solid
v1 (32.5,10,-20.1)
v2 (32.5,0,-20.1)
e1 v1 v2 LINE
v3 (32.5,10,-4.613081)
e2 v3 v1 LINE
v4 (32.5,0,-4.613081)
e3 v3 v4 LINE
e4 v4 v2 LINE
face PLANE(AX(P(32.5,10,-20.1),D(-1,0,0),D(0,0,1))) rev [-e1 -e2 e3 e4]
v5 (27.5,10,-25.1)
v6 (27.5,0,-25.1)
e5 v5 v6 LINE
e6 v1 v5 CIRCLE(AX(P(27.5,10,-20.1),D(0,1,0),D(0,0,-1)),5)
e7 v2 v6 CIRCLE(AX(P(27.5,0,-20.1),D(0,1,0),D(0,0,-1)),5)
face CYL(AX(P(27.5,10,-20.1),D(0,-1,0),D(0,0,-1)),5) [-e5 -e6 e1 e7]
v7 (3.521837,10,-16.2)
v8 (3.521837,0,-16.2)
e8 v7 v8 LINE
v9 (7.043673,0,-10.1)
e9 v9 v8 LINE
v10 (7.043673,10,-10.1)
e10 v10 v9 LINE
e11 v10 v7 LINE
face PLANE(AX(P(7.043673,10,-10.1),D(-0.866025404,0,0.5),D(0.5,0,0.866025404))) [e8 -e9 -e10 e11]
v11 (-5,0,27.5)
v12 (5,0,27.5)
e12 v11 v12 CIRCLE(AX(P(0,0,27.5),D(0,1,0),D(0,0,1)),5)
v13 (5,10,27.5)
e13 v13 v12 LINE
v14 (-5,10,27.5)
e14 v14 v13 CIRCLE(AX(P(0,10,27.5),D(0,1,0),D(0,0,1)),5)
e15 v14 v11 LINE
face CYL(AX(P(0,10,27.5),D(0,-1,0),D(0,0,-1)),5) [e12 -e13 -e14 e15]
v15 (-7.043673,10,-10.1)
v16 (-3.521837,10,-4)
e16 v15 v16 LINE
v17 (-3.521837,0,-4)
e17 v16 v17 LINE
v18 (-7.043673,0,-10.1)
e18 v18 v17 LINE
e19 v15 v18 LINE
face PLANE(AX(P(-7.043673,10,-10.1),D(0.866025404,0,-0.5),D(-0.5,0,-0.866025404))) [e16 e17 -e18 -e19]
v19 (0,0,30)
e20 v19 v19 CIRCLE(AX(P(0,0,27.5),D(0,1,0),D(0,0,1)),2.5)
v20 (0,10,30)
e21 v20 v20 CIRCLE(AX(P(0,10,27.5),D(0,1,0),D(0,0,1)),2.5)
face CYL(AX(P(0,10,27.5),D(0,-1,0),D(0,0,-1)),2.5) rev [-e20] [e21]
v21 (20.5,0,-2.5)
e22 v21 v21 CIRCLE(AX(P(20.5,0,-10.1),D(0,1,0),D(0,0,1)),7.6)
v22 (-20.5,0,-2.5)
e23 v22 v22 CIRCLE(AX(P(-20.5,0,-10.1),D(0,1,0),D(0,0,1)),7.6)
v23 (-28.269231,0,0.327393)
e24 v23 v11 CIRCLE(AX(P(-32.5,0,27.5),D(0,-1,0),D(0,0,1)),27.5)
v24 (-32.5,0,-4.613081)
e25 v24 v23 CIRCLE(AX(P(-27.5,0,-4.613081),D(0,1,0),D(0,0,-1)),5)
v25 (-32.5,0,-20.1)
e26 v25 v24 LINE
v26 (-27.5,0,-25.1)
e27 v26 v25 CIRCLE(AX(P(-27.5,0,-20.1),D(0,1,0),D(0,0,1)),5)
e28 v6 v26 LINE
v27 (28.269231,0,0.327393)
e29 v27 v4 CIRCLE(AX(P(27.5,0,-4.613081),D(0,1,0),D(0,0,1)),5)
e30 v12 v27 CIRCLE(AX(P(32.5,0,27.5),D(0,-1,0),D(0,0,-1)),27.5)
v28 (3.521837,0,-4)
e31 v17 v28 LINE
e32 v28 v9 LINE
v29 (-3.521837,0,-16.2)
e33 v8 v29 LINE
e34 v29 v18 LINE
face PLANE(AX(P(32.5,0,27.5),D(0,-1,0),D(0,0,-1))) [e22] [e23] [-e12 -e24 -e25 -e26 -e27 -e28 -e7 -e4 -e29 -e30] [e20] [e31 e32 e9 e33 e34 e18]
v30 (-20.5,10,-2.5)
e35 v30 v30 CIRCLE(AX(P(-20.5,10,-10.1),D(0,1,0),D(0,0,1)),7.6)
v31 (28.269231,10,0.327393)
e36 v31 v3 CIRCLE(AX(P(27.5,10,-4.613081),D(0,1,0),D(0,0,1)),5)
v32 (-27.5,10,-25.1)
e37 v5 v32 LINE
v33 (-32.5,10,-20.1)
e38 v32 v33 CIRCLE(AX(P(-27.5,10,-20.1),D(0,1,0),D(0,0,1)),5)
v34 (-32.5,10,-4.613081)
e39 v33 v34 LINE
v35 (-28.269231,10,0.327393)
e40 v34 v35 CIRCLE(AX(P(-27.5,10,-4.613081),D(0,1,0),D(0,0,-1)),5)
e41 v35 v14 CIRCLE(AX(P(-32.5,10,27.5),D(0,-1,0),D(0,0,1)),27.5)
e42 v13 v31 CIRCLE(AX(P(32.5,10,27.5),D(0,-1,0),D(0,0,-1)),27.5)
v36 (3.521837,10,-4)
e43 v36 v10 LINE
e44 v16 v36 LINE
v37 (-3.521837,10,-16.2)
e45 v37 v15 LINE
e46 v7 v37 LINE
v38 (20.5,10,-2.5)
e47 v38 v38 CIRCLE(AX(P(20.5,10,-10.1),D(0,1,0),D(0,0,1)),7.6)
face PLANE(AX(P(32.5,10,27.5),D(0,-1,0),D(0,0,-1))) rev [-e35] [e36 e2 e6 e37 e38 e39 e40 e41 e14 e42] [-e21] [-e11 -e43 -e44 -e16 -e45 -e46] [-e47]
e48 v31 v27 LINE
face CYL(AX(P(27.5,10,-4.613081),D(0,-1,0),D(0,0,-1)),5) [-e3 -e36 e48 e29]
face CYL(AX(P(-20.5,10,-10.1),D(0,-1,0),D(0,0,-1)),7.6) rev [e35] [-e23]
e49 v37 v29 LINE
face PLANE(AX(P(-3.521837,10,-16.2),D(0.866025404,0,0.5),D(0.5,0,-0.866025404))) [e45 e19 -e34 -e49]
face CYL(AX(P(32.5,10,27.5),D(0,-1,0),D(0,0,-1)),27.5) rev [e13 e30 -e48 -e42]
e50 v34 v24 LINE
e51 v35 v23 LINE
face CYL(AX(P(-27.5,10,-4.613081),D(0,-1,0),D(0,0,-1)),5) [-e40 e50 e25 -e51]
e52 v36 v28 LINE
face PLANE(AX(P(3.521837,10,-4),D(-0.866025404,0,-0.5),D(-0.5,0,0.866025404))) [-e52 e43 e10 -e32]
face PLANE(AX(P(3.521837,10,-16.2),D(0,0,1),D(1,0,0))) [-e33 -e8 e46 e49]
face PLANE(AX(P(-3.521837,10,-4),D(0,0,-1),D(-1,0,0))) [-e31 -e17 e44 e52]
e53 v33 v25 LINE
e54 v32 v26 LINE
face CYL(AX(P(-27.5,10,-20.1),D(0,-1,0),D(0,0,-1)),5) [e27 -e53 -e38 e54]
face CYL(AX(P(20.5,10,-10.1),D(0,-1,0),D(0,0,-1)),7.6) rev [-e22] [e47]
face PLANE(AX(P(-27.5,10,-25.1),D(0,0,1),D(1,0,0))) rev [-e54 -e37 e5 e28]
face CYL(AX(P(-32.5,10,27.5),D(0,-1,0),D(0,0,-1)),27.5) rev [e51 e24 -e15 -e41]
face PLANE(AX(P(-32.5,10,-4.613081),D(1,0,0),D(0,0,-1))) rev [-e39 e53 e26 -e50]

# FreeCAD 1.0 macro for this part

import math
import FreeCAD as App
import Part
import Sketcher
from FreeCAD import Vector
Q = App.Units.Quantity

doc = App.newDocument("Part")
body = doc.addObject("PartDesign::Body", "Body")

sketch1 = body.newObject("Sketcher::SketchObject", "Sketch")
sketch1.AttachmentSupport = (doc.getObject("XZ_Plane"), [""])
sketch1.MapMode = "FlatFace"
sketch1.addGeometry([
    Part.LineSegment(Vector(27.5, -25.1, 0), Vector(-27.5, -25.1, 0)),
    Part.ArcOfCircle(Part.Circle(Vector(-27.5, -20.1, 0), Vector(0, 0, 1), 5), math.radians(180), math.radians(270)),
    Part.LineSegment(Vector(-32.5, -20.1, 0), Vector(-32.5, -4.6, 0)),
    Part.ArcOfCircle(Part.Circle(Vector(-27.5, -4.6, 0), Vector(0, 0, 1), 5), math.radians(99), math.radians(180)),
    Part.ArcOfCircle(Part.Circle(Vector(-32.5, 27.5, 0), Vector(0, 0, 1), 27.5), math.radians(-81), math.radians(0)),
    Part.ArcOfCircle(Part.Circle(Vector(0, 27.5, 0), Vector(0, 0, 1), 5), math.radians(0), math.radians(180)),
    Part.ArcOfCircle(Part.Circle(Vector(32.5, 27.5, 0), Vector(0, 0, 1), 27.5), math.radians(180), math.radians(261)),
    Part.ArcOfCircle(Part.Circle(Vector(27.5, -4.6, 0), Vector(0, 0, 1), 5), math.radians(0), math.radians(81)),
    Part.LineSegment(Vector(32.5, -4.6, 0), Vector(32.5, -20.1, 0)),
    Part.ArcOfCircle(Part.Circle(Vector(27.5, -20.1, 0), Vector(0, 0, 1), 5), math.radians(-90), math.radians(0)),
    Part.Circle(Vector(0, 27.5, 0), Vector(0, 0, 1), 2.5),
    Part.Circle(Vector(20.5, -10.1, 0), Vector(0, 0, 1), 7.6),
    Part.LineSegment(Vector(7, -10.1, 0), Vector(3.5, -4, 0)),
    Part.LineSegment(Vector(3.5, -4, 0), Vector(-3.5, -4, 0)),
    Part.LineSegment(Vector(-3.5, -4, 0), Vector(-7, -10.1, 0)),
    Part.LineSegment(Vector(-7, -10.1, 0), Vector(-3.5, -16.2, 0)),
    Part.LineSegment(Vector(-3.5, -16.2, 0), Vector(3.5, -16.2, 0)),
    Part.LineSegment(Vector(3.5, -16.2, 0), Vector(7, -10.1, 0)),
    Part.Circle(Vector(-20.5, -10.1, 0), Vector(0, 0, 1), 7.6),
], False)
sketch1.addConstraint([
    Sketcher.Constraint("Tangent", 0, 2, 1, 2),
    Sketcher.Constraint("Tangent", 1, 1, 2, 1),
    Sketcher.Constraint("Tangent", 2, 2, 3, 2),
    Sketcher.Constraint("Tangent", 3, 1, 4, 1),
    Sketcher.Constraint("Tangent", 4, 2, 5, 2),
    Sketcher.Constraint("Tangent", 5, 1, 6, 1),
    Sketcher.Constraint("Tangent", 6, 2, 7, 2),
    Sketcher.Constraint("Tangent", 7, 1, 8, 1),
    Sketcher.Constraint("Tangent", 8, 2, 9, 2),
    Sketcher.Constraint("Tangent", 9, 1, 0, 1),
    Sketcher.Constraint("Coincident", 12, 2, 13, 1),
    Sketcher.Constraint("Coincident", 13, 2, 14, 1),
    Sketcher.Constraint("Coincident", 14, 2, 15, 1),
    Sketcher.Constraint("Coincident", 15, 2, 16, 1),
    Sketcher.Constraint("Coincident", 16, 2, 17, 1),
    Sketcher.Constraint("Coincident", 17, 2, 12, 1),
    Sketcher.Constraint("Horizontal", 0),
    Sketcher.Constraint("Vertical", 2),
    Sketcher.Constraint("Vertical", 8),
    Sketcher.Constraint("Horizontal", 13),
    Sketcher.Constraint("Horizontal", 16),
    Sketcher.Constraint("Coincident", 10, 3, 5, 3),
    Sketcher.Constraint("Equal", 1, 3),
    Sketcher.Constraint("Equal", 3, 5),
    Sketcher.Constraint("Equal", 4, 6),
    Sketcher.Constraint("Equal", 5, 7),
    Sketcher.Constraint("Equal", 7, 9),
    Sketcher.Constraint("Equal", 11, 18),
    Sketcher.Constraint("Symmetric", 4, 3, 6, 3, -2),
    Sketcher.Constraint("Symmetric", 11, 3, 18, 3, -2),
    Sketcher.Constraint("Symmetric", 14, 2, 17, 2, -2),
    Sketcher.Constraint("Parallel", 12, 15),
    Sketcher.Constraint("Parallel", 14, 17),
    Sketcher.Constraint("Horizontal", 4, 3, 5, 3),
    Sketcher.Constraint("Horizontal", 3, 3, 7, 3),
    Sketcher.Constraint("Horizontal", 18, 3, 14, 2),
    Sketcher.Constraint("Vertical", 4, 3, 1, 1),
    Sketcher.Constraint("Vertical", 13, 2, 15, 2),
    Sketcher.Constraint("Vertical", 12, 2, 16, 2),
    Sketcher.Constraint("Diameter", 10, Q("5 mm")),
    Sketcher.Constraint("Radius", 1, Q("5 mm")),
    Sketcher.Constraint("Diameter", 11, Q("15.2 mm")),
    Sketcher.Constraint("Radius", 4, Q("27.5 mm")),
    Sketcher.Constraint("Angle", 12, Q("120 deg")),
    Sketcher.Constraint("DistanceY", 12, 2, -1, 1, Q("4 mm")),
    Sketcher.Constraint("DistanceX", 11, 3, 7, 3, Q("7 mm")),
    Sketcher.Constraint("DistanceY", 9, 3, 11, 3, Q("10 mm")),
    Sketcher.Constraint("DistanceY", 1, 3, -1, 1, Q("20.1 mm")),
    Sketcher.Constraint("DistanceY", -1, 1, 4, 3, Q("27.5 mm")),
    Sketcher.Constraint("DistanceX", 13, 2, 13, 1, Q("7.043673 mm")),
])
pad1 = body.newObject("PartDesign::Pad", "Pad")
pad1.Profile = sketch1
pad1.Length = 10
pad1.Reversed = True

doc.recompute()
